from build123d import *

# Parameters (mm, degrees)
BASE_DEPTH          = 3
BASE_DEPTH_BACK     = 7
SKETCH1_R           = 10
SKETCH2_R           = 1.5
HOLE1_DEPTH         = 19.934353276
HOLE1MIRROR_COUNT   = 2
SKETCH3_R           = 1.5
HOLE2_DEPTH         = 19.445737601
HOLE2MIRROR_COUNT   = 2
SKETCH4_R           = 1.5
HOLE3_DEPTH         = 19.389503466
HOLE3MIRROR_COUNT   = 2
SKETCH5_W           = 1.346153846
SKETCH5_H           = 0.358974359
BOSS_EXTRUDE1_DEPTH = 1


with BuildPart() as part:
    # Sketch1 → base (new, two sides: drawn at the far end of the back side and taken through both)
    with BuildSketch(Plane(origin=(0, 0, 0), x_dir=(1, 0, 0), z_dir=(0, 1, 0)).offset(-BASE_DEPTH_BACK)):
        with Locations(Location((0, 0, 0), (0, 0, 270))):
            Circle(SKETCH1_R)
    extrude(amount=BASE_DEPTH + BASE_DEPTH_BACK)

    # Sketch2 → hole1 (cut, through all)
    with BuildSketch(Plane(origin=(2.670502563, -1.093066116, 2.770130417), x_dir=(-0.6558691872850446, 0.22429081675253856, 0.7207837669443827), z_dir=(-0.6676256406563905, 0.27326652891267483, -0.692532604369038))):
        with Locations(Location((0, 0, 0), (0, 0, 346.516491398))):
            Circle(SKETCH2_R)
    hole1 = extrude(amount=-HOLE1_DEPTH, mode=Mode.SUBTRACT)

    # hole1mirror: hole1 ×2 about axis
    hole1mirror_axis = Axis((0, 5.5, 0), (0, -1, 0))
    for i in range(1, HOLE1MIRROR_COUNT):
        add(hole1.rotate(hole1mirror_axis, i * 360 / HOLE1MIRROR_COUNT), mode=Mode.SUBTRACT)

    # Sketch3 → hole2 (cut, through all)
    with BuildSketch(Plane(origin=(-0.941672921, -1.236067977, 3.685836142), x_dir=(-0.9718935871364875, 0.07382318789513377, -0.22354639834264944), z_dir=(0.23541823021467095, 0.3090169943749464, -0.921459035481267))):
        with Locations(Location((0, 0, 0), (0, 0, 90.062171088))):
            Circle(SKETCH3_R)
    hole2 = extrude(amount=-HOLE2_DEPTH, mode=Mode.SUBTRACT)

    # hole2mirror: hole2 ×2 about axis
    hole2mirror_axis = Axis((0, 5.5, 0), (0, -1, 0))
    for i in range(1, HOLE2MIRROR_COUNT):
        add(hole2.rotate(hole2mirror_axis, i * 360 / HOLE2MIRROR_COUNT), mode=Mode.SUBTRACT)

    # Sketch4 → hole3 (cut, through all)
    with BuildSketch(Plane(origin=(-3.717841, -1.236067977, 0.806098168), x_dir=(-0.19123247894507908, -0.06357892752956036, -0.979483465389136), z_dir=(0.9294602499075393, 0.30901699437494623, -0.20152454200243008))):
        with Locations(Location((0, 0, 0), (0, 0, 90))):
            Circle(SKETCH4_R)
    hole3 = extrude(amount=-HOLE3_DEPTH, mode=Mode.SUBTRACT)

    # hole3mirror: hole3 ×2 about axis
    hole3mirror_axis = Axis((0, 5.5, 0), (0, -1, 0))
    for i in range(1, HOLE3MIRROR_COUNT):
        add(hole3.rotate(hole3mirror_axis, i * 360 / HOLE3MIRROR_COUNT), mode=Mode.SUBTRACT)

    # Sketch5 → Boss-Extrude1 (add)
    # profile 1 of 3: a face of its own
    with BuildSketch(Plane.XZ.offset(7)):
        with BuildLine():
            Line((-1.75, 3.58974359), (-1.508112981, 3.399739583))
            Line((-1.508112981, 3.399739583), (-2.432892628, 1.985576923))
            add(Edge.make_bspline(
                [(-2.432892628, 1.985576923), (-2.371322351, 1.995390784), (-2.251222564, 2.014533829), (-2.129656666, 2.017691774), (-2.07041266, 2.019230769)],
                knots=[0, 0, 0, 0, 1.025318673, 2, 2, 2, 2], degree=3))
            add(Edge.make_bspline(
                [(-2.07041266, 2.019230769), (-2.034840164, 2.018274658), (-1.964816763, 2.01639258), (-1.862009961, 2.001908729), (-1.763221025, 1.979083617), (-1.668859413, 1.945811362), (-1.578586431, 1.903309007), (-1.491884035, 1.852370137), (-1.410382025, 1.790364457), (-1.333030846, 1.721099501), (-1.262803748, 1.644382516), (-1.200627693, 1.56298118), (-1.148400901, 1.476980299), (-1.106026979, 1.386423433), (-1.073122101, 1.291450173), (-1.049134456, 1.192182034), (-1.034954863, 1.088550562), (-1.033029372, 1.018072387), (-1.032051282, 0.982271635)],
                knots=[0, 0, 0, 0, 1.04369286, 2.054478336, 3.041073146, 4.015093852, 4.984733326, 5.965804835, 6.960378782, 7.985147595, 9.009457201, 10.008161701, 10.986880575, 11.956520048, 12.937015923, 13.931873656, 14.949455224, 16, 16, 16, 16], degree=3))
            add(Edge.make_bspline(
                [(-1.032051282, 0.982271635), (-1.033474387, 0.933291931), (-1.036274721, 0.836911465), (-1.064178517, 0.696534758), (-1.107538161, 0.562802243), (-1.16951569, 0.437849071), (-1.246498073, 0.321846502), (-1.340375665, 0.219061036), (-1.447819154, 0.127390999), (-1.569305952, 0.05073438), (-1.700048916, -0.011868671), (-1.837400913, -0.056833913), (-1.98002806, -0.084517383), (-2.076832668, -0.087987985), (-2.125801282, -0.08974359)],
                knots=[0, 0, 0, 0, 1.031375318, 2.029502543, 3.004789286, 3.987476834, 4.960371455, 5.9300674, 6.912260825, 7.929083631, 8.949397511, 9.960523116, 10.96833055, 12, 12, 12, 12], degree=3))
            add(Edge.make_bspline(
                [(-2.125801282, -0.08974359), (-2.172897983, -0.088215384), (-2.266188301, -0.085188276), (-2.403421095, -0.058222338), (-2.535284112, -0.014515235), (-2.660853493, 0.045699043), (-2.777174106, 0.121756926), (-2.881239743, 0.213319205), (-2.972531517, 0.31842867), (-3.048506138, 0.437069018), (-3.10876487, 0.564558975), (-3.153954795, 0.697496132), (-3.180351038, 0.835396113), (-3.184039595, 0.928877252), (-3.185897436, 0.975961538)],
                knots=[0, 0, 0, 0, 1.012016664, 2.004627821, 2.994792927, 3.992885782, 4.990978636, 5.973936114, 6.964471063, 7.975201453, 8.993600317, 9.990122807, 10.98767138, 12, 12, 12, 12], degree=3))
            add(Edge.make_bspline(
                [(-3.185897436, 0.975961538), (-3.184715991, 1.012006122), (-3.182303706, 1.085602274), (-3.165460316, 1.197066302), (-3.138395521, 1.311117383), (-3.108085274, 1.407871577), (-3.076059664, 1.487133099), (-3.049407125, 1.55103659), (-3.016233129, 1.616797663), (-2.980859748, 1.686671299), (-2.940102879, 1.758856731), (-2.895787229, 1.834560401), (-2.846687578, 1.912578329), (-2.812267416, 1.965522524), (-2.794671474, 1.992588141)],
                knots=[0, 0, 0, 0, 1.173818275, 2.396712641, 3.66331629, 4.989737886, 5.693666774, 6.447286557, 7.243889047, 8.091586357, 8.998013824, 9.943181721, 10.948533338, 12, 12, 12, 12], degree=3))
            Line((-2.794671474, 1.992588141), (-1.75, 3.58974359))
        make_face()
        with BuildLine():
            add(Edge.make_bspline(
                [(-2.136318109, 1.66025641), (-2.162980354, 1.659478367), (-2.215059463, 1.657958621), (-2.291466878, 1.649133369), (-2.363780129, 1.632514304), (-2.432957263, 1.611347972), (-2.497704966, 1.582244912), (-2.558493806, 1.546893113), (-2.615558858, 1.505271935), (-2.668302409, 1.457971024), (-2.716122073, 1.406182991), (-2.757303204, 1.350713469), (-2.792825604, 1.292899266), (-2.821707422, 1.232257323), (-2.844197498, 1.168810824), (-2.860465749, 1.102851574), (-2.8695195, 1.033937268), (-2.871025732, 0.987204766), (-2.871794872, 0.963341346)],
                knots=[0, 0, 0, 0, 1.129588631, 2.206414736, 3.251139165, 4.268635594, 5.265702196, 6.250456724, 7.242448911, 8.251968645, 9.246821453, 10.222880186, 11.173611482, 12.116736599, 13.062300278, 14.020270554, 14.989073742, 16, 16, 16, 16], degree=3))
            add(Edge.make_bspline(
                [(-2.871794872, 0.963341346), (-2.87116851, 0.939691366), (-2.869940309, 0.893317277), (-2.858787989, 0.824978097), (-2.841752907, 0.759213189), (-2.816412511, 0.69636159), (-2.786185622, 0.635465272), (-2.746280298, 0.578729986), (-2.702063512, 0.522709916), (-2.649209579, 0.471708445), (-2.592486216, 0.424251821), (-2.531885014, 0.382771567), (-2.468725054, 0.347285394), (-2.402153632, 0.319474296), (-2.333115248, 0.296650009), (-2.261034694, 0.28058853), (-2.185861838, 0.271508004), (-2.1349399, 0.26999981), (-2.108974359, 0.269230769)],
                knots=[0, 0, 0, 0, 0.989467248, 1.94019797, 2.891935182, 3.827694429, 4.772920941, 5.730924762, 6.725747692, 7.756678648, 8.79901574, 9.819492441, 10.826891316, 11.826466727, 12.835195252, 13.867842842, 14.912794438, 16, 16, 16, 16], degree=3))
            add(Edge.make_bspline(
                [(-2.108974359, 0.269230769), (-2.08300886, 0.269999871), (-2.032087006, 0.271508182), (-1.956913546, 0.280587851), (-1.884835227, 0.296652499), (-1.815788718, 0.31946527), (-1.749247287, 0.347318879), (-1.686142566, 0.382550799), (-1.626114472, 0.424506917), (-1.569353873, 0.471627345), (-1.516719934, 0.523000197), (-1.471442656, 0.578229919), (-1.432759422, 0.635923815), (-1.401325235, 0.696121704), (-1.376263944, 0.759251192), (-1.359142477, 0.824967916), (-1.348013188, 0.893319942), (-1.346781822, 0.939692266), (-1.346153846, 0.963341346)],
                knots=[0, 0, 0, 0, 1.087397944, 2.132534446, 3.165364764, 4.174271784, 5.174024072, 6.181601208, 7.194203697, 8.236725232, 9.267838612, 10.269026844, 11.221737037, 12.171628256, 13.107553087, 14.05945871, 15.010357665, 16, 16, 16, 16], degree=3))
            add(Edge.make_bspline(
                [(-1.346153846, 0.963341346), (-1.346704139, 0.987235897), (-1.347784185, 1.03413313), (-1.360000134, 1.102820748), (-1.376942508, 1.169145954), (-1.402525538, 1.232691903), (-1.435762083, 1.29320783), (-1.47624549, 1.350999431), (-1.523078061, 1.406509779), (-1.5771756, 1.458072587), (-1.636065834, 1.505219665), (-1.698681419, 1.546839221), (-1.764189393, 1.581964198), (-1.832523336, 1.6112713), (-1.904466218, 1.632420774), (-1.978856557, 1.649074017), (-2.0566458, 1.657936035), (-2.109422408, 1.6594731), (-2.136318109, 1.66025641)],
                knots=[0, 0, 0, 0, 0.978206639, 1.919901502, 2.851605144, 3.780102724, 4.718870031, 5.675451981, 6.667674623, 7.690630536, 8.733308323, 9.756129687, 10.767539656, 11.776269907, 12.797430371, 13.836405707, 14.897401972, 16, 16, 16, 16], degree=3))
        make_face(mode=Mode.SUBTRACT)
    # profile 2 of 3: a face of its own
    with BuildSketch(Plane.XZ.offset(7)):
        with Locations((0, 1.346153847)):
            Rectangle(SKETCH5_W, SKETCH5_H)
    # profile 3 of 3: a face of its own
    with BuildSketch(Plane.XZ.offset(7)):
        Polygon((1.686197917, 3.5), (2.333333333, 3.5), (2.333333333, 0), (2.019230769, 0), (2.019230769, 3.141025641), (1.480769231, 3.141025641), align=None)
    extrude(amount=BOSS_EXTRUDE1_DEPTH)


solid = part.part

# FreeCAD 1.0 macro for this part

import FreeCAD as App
import Part
import Sketcher

V = App.Vector
Q = App.Units.Quantity


def add_polygon(sketch, points):
    """Adds a closed chain of lines whose ends are joined by coincident constraints."""
    first, n = sketch.GeometryCount, len(points)
    for a, b in zip(points, points[1:] + points[:1]):
        sketch.addGeometry(Part.LineSegment(App.Vector(*a, 0), App.Vector(*b, 0)), False)
    for i in range(n):
        sketch.addConstraint(Sketcher.Constraint("Coincident", first + i, 2, first + (i + 1) % n, 1))

doc = App.newDocument("Part")
body = doc.addObject("PartDesign::Body", "Body")

# Sketch on XZ plane
sketch1 = doc.addObject("Sketcher::SketchObject", "Sketch")
body.addObject(sketch1)
sketch1.AttachmentSupport = (doc.XZ_Plane, [""])
sketch1.MapMode = "FlatFace"
sketch1.addGeometry(Part.Circle(V(0, 0, 0), V(0, 0, 1), 10), False)
sketch1.addConstraint([
    Sketcher.Constraint("Coincident", 0, 3, -1, 1),
    Sketcher.Constraint("Diameter", 0, Q("20 mm")),
])
pad1 = doc.addObject("PartDesign::Pad", "Pad")
body.addObject(pad1)
pad1.Profile = sketch1
pad1.Type = "TwoLengths"
pad1.Length = 3
pad1.Length2 = 7
pad1.Reversed = True

# Sketch on an angled plane
sketch2 = doc.addObject("Sketcher::SketchObject", "Sketch001")
body.addObject(sketch2)
sketch2.Placement = App.Placement(V(2.670503, -1.093066, 2.77013), App.Rotation(V(-0.655869187, 0.224290817, 0.720783767), V(0.352294782, 0.93542452, 0.029484796), V(-0.667625641, 0.273266529, -0.692532604), "ZXY"))
sketch2.addGeometry(Part.Circle(V(0, 0, 0), V(0, 0, 1), 1.5), False)
sketch2.addConstraint([
    Sketcher.Constraint("Coincident", 0, 3, -1, 1),
    Sketcher.Constraint("Diameter", 0, Q("3 mm")),
])
pocket1 = doc.addObject("PartDesign::Pocket", "Pocket")
body.addObject(pocket1)
pocket1.Profile = sketch2
pocket1.Type = "ThroughAll"
doc.recompute()

polarpattern = doc.addObject("PartDesign::PolarPattern", "PolarPattern")
body.addObject(polarpattern)
polarpattern.Originals = [pocket1]
polarpattern.Axis = (doc.Y_Axis, [""])
polarpattern.Angle = 360
polarpattern.Occurrences = 2
body.Tip = polarpattern

# Sketch on an angled plane
sketch3 = doc.addObject("Sketcher::SketchObject", "Sketch002")
body.addObject(sketch3)
sketch3.Placement = App.Placement(V(-0.941673, -1.236068, 3.685836), App.Rotation(V(-0.971893587, 0.073823188, -0.223546398), V(-0.001054592, 0.948187024, 0.317710959), V(0.23541823, 0.309016994, -0.921459035), "ZXY"))
sketch3.addGeometry(Part.Circle(V(0, 0, 0), V(0, 0, 1), 1.5), False)
sketch3.addConstraint([
    Sketcher.Constraint("Coincident", 0, 3, -1, 1),
    Sketcher.Constraint("Diameter", 0, Q("3 mm")),
])
pocket2 = doc.addObject("PartDesign::Pocket", "Pocket001")
body.addObject(pocket2)
pocket2.Profile = sketch3
pocket2.Type = "ThroughAll"
doc.recompute()

polarpattern2 = doc.addObject("PartDesign::PolarPattern", "PolarPattern001")
body.addObject(polarpattern2)
polarpattern2.Originals = [pocket2]
polarpattern2.Axis = (doc.Y_Axis, [""])
polarpattern2.Angle = 360
polarpattern2.Occurrences = 2
body.Tip = polarpattern2

# Sketch on an angled plane
sketch4 = doc.addObject("Sketcher::SketchObject", "Sketch003")
body.addObject(sketch4)
sketch4.Placement = App.Placement(V(-3.717841, -1.236068, 0.806098), App.Rotation(V(-0.191232479, -0.063578928, -0.979483465), V(-0.31548975, 0.948928984, 0), V(0.92946025, 0.309016994, -0.201524542), "ZXY"))
sketch4.addGeometry(Part.Circle(V(0, 0, 0), V(0, 0, 1), 1.5), False)
sketch4.addConstraint([
    Sketcher.Constraint("Coincident", 0, 3, -1, 1),
    Sketcher.Constraint("Diameter", 0, Q("3 mm")),
])
pocket3 = doc.addObject("PartDesign::Pocket", "Pocket002")
body.addObject(pocket3)
pocket3.Profile = sketch4
pocket3.Type = "ThroughAll"
doc.recompute()

polarpattern3 = doc.addObject("PartDesign::PolarPattern", "PolarPattern002")
body.addObject(polarpattern3)
polarpattern3.Originals = [pocket3]
polarpattern3.Axis = (doc.Y_Axis, [""])
polarpattern3.Angle = 360
polarpattern3.Occurrences = 2
body.Tip = polarpattern3

# Sketch on XZ plane
sketch5 = doc.addObject("Sketcher::SketchObject", "Sketch004")
body.addObject(sketch5)
sketch5.AttachmentSupport = (doc.XZ_Plane, [""])
sketch5.MapMode = "FlatFace"
sketch5.AttachmentOffset = App.Placement(V(0, 0, 7), App.Rotation())
sketch5.addGeometry(Part.LineSegment(V(-1.508113, 3.39974, 0), V(-1.75, 3.589744, 0)), False)  # 0
sketch5.addGeometry(Part.LineSegment(V(-1.75, 3.589744, 0), V(-2.794671, 1.992588, 0)), False)  # 1
sketch5.addGeometry(Part.BSplineCurve([V(-3.185897, 0.975962, 0), V(-3.184716, 1.012006, 0), V(-3.182304, 1.085602, 0), V(-3.16546, 1.197066, 0), V(-3.138396, 1.311117, 0), V(-3.108085, 1.407872, 0), V(-3.07606, 1.487133, 0), V(-3.049407, 1.551037, 0), V(-3.016233, 1.616798, 0), V(-2.98086, 1.686671, 0), V(-2.940103, 1.758857, 0), V(-2.895787, 1.83456, 0), V(-2.846688, 1.912578, 0), V(-2.812267, 1.965523, 0), V(-2.794671, 1.992588, 0)], [4, 1, 1, 1, 1, 1, 1, 1, 1, 1, 1, 1, 4], [0, 1.173818275, 2.396712641, 3.66331629, 4.989737886, 5.693666774, 6.447286557, 7.243889047, 8.091586357, 8.998013824, 9.943181721, 10.948533338, 12], False, 3, [1, 1, 1, 1, 1, 1, 1, 1, 1, 1, 1, 1, 1, 1, 1], False), False)  # 2
sketch5.addGeometry(Part.BSplineCurve([V(-2.125801, -0.089744, 0), V(-2.172898, -0.088215, 0), V(-2.266188, -0.085188, 0), V(-2.403421, -0.058222, 0), V(-2.535284, -0.014515, 0), V(-2.660853, 0.045699, 0), V(-2.777174, 0.121757, 0), V(-2.88124, 0.213319, 0), V(-2.972532, 0.318429, 0), V(-3.048506, 0.437069, 0), V(-3.108765, 0.564559, 0), V(-3.153955, 0.697496, 0), V(-3.180351, 0.835396, 0), V(-3.18404, 0.928877, 0), V(-3.185897, 0.975962, 0)], [4, 1, 1, 1, 1, 1, 1, 1, 1, 1, 1, 1, 4], [0, 1.012016664, 2.004627821, 2.994792927, 3.992885782, 4.990978636, 5.973936114, 6.964471063, 7.975201453, 8.993600317, 9.990122807, 10.98767138, 12], False, 3, [1, 1, 1, 1, 1, 1, 1, 1, 1, 1, 1, 1, 1, 1, 1], False), False)  # 3
sketch5.addGeometry(Part.BSplineCurve([V(-1.032051, 0.982272, 0), V(-1.033474, 0.933292, 0), V(-1.036275, 0.836911, 0), V(-1.064179, 0.696535, 0), V(-1.107538, 0.562802, 0), V(-1.169516, 0.437849, 0), V(-1.246498, 0.321847, 0), V(-1.340376, 0.219061, 0), V(-1.447819, 0.127391, 0), V(-1.569306, 0.050734, 0), V(-1.700049, -0.011869, 0), V(-1.837401, -0.056834, 0), V(-1.980028, -0.084517, 0), V(-2.076833, -0.087988, 0), V(-2.125801, -0.089744, 0)], [4, 1, 1, 1, 1, 1, 1, 1, 1, 1, 1, 1, 4], [0, 1.031375318, 2.029502543, 3.004789286, 3.987476834, 4.960371455, 5.9300674, 6.912260825, 7.929083631, 8.949397511, 9.960523116, 10.96833055, 12], False, 3, [1, 1, 1, 1, 1, 1, 1, 1, 1, 1, 1, 1, 1, 1, 1], False), False)  # 4
sketch5.addGeometry(Part.BSplineCurve([V(-2.070413, 2.019231, 0), V(-2.03484, 2.018275, 0), V(-1.964817, 2.016393, 0), V(-1.86201, 2.001909, 0), V(-1.763221, 1.979084, 0), V(-1.668859, 1.945811, 0), V(-1.578586, 1.903309, 0), V(-1.491884, 1.85237, 0), V(-1.410382, 1.790364, 0), V(-1.333031, 1.7211, 0), V(-1.262804, 1.644383, 0), V(-1.200628, 1.562981, 0), V(-1.148401, 1.47698, 0), V(-1.106027, 1.386423, 0), V(-1.073122, 1.29145, 0), V(-1.049134, 1.192182, 0), V(-1.034955, 1.088551, 0), V(-1.033029, 1.018072, 0), V(-1.032051, 0.982272, 0)], [4, 1, 1, 1, 1, 1, 1, 1, 1, 1, 1, 1, 1, 1, 1, 1, 4], [0, 1.04369286, 2.054478336, 3.041073146, 4.015093852, 4.984733326, 5.965804835, 6.960378782, 7.985147595, 9.009457201, 10.008161701, 10.986880575, 11.956520048, 12.937015923, 13.931873656, 14.949455224, 16], False, 3, [1, 1, 1, 1, 1, 1, 1, 1, 1, 1, 1, 1, 1, 1, 1, 1, 1, 1, 1], False), False)  # 5
sketch5.addGeometry(Part.BSplineCurve([V(-2.432893, 1.985577, 0), V(-2.371322, 1.995391, 0), V(-2.251223, 2.014534, 0), V(-2.129657, 2.017692, 0), V(-2.070413, 2.019231, 0)], [4, 1, 4], [0, 1.025318673, 2], False, 3, [1, 1, 1, 1, 1], False), False)  # 6
sketch5.addGeometry(Part.LineSegment(V(-2.432893, 1.985577, 0), V(-1.508113, 3.39974, 0)), False)  # 7
sketch5.addGeometry(Part.BSplineCurve([V(-1.346154, 0.963341, 0), V(-1.346704, 0.987236, 0), V(-1.347784, 1.034133, 0), V(-1.36, 1.102821, 0), V(-1.376943, 1.169146, 0), V(-1.402526, 1.232692, 0), V(-1.435762, 1.293208, 0), V(-1.476245, 1.350999, 0), V(-1.523078, 1.40651, 0), V(-1.577176, 1.458073, 0), V(-1.636066, 1.50522, 0), V(-1.698681, 1.546839, 0), V(-1.764189, 1.581964, 0), V(-1.832523, 1.611271, 0), V(-1.904466, 1.632421, 0), V(-1.978857, 1.649074, 0), V(-2.056646, 1.657936, 0), V(-2.109422, 1.659473, 0), V(-2.136318, 1.660256, 0)], [4, 1, 1, 1, 1, 1, 1, 1, 1, 1, 1, 1, 1, 1, 1, 1, 4], [0, 0.978206639, 1.919901502, 2.851605144, 3.780102724, 4.718870031, 5.675451981, 6.667674623, 7.690630536, 8.733308323, 9.756129687, 10.767539656, 11.776269907, 12.797430371, 13.836405707, 14.897401972, 16], False, 3, [1, 1, 1, 1, 1, 1, 1, 1, 1, 1, 1, 1, 1, 1, 1, 1, 1, 1, 1], False), False)  # 8
sketch5.addGeometry(Part.BSplineCurve([V(-2.108974, 0.269231, 0), V(-2.083009, 0.27, 0), V(-2.032087, 0.271508, 0), V(-1.956914, 0.280588, 0), V(-1.884835, 0.296652, 0), V(-1.815789, 0.319465, 0), V(-1.749247, 0.347319, 0), V(-1.686143, 0.382551, 0), V(-1.626114, 0.424507, 0), V(-1.569354, 0.471627, 0), V(-1.51672, 0.523, 0), V(-1.471443, 0.57823, 0), V(-1.432759, 0.635924, 0), V(-1.401325, 0.696122, 0), V(-1.376264, 0.759251, 0), V(-1.359142, 0.824968, 0), V(-1.348013, 0.89332, 0), V(-1.346782, 0.939692, 0), V(-1.346154, 0.963341, 0)], [4, 1, 1, 1, 1, 1, 1, 1, 1, 1, 1, 1, 1, 1, 1, 1, 4], [0, 1.087397944, 2.132534446, 3.165364764, 4.174271784, 5.174024072, 6.181601208, 7.194203697, 8.236725232, 9.267838612, 10.269026844, 11.221737037, 12.171628256, 13.107553087, 14.05945871, 15.010357665, 16], False, 3, [1, 1, 1, 1, 1, 1, 1, 1, 1, 1, 1, 1, 1, 1, 1, 1, 1, 1, 1], False), False)  # 9
sketch5.addGeometry(Part.BSplineCurve([V(-2.871795, 0.963341, 0), V(-2.871169, 0.939691, 0), V(-2.86994, 0.893317, 0), V(-2.858788, 0.824978, 0), V(-2.841753, 0.759213, 0), V(-2.816413, 0.696362, 0), V(-2.786186, 0.635465, 0), V(-2.74628, 0.57873, 0), V(-2.702064, 0.52271, 0), V(-2.64921, 0.471708, 0), V(-2.592486, 0.424252, 0), V(-2.531885, 0.382772, 0), V(-2.468725, 0.347285, 0), V(-2.402154, 0.319474, 0), V(-2.333115, 0.29665, 0), V(-2.261035, 0.280589, 0), V(-2.185862, 0.271508, 0), V(-2.13494, 0.27, 0), V(-2.108974, 0.269231, 0)], [4, 1, 1, 1, 1, 1, 1, 1, 1, 1, 1, 1, 1, 1, 1, 1, 4], [0, 0.989467248, 1.94019797, 2.891935182, 3.827694429, 4.772920941, 5.730924762, 6.725747692, 7.756678648, 8.79901574, 9.819492441, 10.826891316, 11.826466727, 12.835195252, 13.867842842, 14.912794438, 16], False, 3, [1, 1, 1, 1, 1, 1, 1, 1, 1, 1, 1, 1, 1, 1, 1, 1, 1, 1, 1], False), False)  # 10
sketch5.addGeometry(Part.BSplineCurve([V(-2.136318, 1.660256, 0), V(-2.16298, 1.659478, 0), V(-2.215059, 1.657959, 0), V(-2.291467, 1.649133, 0), V(-2.36378, 1.632514, 0), V(-2.432957, 1.611348, 0), V(-2.497705, 1.582245, 0), V(-2.558494, 1.546893, 0), V(-2.615559, 1.505272, 0), V(-2.668302, 1.457971, 0), V(-2.716122, 1.406183, 0), V(-2.757303, 1.350713, 0), V(-2.792826, 1.292899, 0), V(-2.821707, 1.232257, 0), V(-2.844197, 1.168811, 0), V(-2.860466, 1.102852, 0), V(-2.86952, 1.033937, 0), V(-2.871026, 0.987205, 0), V(-2.871795, 0.963341, 0)], [4, 1, 1, 1, 1, 1, 1, 1, 1, 1, 1, 1, 1, 1, 1, 1, 4], [0, 1.129588631, 2.206414736, 3.251139165, 4.268635594, 5.265702196, 6.250456724, 7.242448911, 8.251968645, 9.246821453, 10.222880186, 11.173611482, 12.116736599, 13.062300278, 14.020270554, 14.989073742, 16], False, 3, [1, 1, 1, 1, 1, 1, 1, 1, 1, 1, 1, 1, 1, 1, 1, 1, 1, 1, 1], False), False)  # 11
add_polygon(sketch5, [(-0.673077, 1.525641), (-0.673077, 1.166667), (0.673077, 1.166667), (0.673077, 1.525641)])  # lines 12-15
add_polygon(sketch5, [(2.333333, 3.5), (1.686198, 3.5), (1.480769, 3.141026), (2.019231, 3.141026), (2.019231, 0), (2.333333, 0)])  # lines 16-21
sketch5.addConstraint([
    Sketcher.Constraint("Block", 2),
    Sketcher.Constraint("Block", 3),
    Sketcher.Constraint("Block", 4),
    Sketcher.Constraint("Block", 5),
    Sketcher.Constraint("Block", 6),
    Sketcher.Constraint("Block", 8),
    Sketcher.Constraint("Block", 9),
    Sketcher.Constraint("Block", 10),
    Sketcher.Constraint("Block", 11),
    Sketcher.Constraint("Coincident", 0, 2, 1, 1),
    Sketcher.Constraint("Coincident", 1, 2, 2, 2),
    Sketcher.Constraint("Coincident", 6, 1, 7, 1),
    Sketcher.Constraint("Coincident", 7, 2, 0, 1),
    Sketcher.Constraint("Vertical", 12),
    Sketcher.Constraint("Horizontal", 13),
    Sketcher.Constraint("Vertical", 14),
    Sketcher.Constraint("Horizontal", 15),
    Sketcher.Constraint("Horizontal", 16),
    Sketcher.Constraint("Horizontal", 18),
    Sketcher.Constraint("Vertical", 19),
    Sketcher.Constraint("Horizontal", 20),
    Sketcher.Constraint("Vertical", 21),
    Sketcher.Constraint("PointOnObject", 19, 2, -1),
    Sketcher.Constraint("DistanceY", 21, 1, 21, 2, Q("3.5 mm")),
    Sketcher.Constraint("DistanceX", 0, 2, -1, 1, Q("1.75 mm")),
    Sketcher.Constraint("Distance", 17, Q("0.413598 mm")),
    Sketcher.Constraint("DistanceX", 18, 1, 18, 2, Q("0.538462 mm")),
    Sketcher.Constraint("DistanceY", 14, 2, 7, 2, Q("1.874099 mm")),
    Sketcher.Constraint("Distance", 0, Q("0.307589 mm")),
    Sketcher.Constraint("DistanceX", 13, 1, 13, 2, Q("1.346154 mm")),
    Sketcher.Constraint("DistanceX", 16, 2, 16, 1, Q("0.647135 mm")),
    Sketcher.Constraint("DistanceX", 20, 1, 20, 2, Q("0.314103 mm")),
    Sketcher.Constraint("DistanceY", 12, 2, 12, 1, Q("0.358974 mm")),
    Sketcher.Constraint("DistanceY", -1, 1, 7, 2, Q("3.39974 mm")),
    Sketcher.Constraint("DistanceX", -1, 1, 17, 2, Q("1.480769 mm")),
    Sketcher.Constraint("DistanceX", 1, 2, 7, 2, Q("1.286558 mm")),
    Sketcher.Constraint("DistanceX", 7, 2, 13, 2, Q("2.18119 mm")),
])
pad2 = doc.addObject("PartDesign::Pad", "Pad001")
body.addObject(pad2)
pad2.Profile = sketch5
pad2.Length = 1

doc.recompute()
